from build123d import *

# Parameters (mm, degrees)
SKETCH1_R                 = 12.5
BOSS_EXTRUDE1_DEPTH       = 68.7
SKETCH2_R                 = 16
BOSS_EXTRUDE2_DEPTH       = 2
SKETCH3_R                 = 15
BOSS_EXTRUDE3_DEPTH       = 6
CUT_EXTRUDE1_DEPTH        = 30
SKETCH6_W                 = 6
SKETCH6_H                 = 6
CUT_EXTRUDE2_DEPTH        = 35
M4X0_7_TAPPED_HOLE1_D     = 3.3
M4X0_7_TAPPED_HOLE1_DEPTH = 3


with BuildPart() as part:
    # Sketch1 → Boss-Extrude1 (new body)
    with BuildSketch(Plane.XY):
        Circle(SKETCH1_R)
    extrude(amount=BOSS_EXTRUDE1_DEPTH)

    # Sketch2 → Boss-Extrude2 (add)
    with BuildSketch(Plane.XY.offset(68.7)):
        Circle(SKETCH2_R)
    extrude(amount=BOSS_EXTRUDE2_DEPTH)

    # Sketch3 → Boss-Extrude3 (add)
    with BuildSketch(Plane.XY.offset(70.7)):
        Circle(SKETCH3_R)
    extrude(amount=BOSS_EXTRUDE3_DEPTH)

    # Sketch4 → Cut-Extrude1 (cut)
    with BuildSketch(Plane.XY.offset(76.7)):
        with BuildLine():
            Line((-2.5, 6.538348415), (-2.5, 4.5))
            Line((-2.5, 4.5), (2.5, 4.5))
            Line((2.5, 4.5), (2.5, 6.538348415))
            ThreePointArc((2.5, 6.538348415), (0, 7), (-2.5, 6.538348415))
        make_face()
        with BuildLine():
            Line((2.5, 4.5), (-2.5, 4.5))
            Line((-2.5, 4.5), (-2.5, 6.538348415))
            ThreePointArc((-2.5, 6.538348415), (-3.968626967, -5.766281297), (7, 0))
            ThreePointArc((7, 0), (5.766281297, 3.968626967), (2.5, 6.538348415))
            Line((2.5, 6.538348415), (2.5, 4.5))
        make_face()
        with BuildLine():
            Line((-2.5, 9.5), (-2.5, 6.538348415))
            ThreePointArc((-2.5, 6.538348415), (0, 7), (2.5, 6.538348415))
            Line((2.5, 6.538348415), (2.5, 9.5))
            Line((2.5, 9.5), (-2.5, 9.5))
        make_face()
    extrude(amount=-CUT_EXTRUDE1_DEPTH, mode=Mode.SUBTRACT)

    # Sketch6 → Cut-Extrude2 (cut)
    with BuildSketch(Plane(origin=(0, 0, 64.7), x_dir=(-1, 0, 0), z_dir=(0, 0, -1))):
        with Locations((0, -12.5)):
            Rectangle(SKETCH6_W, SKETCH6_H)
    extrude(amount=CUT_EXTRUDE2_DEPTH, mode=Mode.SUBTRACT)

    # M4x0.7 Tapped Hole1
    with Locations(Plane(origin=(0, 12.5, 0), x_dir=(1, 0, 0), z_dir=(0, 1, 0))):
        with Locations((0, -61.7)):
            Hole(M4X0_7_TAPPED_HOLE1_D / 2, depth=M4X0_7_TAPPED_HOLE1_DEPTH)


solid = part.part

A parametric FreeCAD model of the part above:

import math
import FreeCAD as App
import Part
import Sketcher

V = App.Vector


def add_polygon(sketch, points):
    """Adds a closed chain of lines whose ends are joined by coincident constraints."""
    first, n = sketch.GeometryCount, len(points)
    for a, b in zip(points, points[1:] + points[:1]):
        sketch.addGeometry(Part.LineSegment(App.Vector(*a, 0), App.Vector(*b, 0)), False)
    for i in range(n):
        sketch.addConstraint(Sketcher.Constraint("Coincident", first + i, 2, first + (i + 1) % n, 1))

doc = App.newDocument("Part")
params = doc.addObject("Spreadsheet::Sheet", "Params")
for row, (alias, value) in enumerate([
    ("sketch1_diameter", "25 mm"),
    ("pad1_length", "68.7 mm"),
    ("sketch2_diameter", "32 mm"),
    ("pad2_length", "2 mm"),
    ("sketch3_diameter", "30 mm"),
    ("pad3_length", "6 mm"),
    ("sketch4_radius", "7 mm"),
    ("sketch4_width", "5 mm"),
    ("pocket1_length", "30 mm"),
    ("sketch5_width", "6 mm"),
    ("pocket2_length", "35 mm"),
    ("sketch6_diameter", "3.3 mm"),
    ("hole_diameter", "3.3 mm"),
    ("hole_depth", "3 mm"),
], start=1):
    params.set(f"A{row}", alias)
    params.set(f"B{row}", "=" + value)
    params.setAlias(f"B{row}", alias)

body = doc.addObject("PartDesign::Body", "Body")

# Sketch on XY plane
sketch1 = body.newObject("Sketcher::SketchObject", "Sketch")
sketch1.AttachmentSupport = (doc.getObject("XY_Plane"), [""])
sketch1.MapMode = "FlatFace"
sketch1.addGeometry(Part.Circle(V(0, 0, 0), V(0, 0, 1), 12), False)
sketch1.addConstraint([
    Sketcher.Constraint("Coincident", 0, 3, -1, 1),
    Sketcher.Constraint("Diameter", 0, 25.0),
])
sketch1.setExpression("Constraints[1]", "Params.sketch1_diameter")
pad1 = body.newObject("PartDesign::Pad", "Pad")
pad1.Profile = sketch1
pad1.setExpression("Length", "Params.pad1_length")

# Sketch on XY plane
sketch2 = body.newObject("Sketcher::SketchObject", "Sketch001")
sketch2.AttachmentSupport = (doc.getObject("XY_Plane"), [""])
sketch2.MapMode = "FlatFace"
sketch2.AttachmentOffset = App.Placement(V(0, 0, 68.7), App.Rotation())
sketch2.addGeometry(Part.Circle(V(0, 0, 0), V(0, 0, 1), 16), False)
sketch2.addConstraint([
    Sketcher.Constraint("Coincident", 0, 3, -1, 1),
    Sketcher.Constraint("Diameter", 0, 32.0),
])
sketch2.setExpression("Constraints[1]", "Params.sketch2_diameter")
pad2 = body.newObject("PartDesign::Pad", "Pad001")
pad2.Profile = sketch2
pad2.setExpression("Length", "Params.pad2_length")

# Sketch on XY plane
sketch3 = body.newObject("Sketcher::SketchObject", "Sketch002")
sketch3.AttachmentSupport = (doc.getObject("XY_Plane"), [""])
sketch3.MapMode = "FlatFace"
sketch3.AttachmentOffset = App.Placement(V(0, 0, 70.7), App.Rotation())
sketch3.addGeometry(Part.Circle(V(0, 0, 0), V(0, 0, 1), 15), False)
sketch3.addConstraint([
    Sketcher.Constraint("Coincident", 0, 3, -1, 1),
    Sketcher.Constraint("Diameter", 0, 30.0),
])
sketch3.setExpression("Constraints[1]", "Params.sketch3_diameter")
pad3 = body.newObject("PartDesign::Pad", "Pad002")
pad3.Profile = sketch3
pad3.setExpression("Length", "Params.pad3_length")

# Sketch on XY plane
sketch4 = body.newObject("Sketcher::SketchObject", "Sketch003")
sketch4.AttachmentSupport = (doc.getObject("XY_Plane"), [""])
sketch4.MapMode = "FlatFace"
sketch4.AttachmentOffset = App.Placement(V(0, 0, 76.7), App.Rotation())
sketch4.addGeometry([
    Part.ArcOfCircle(Part.Circle(V(0, 0, 0), V(0, 0, 1), 7), math.radians(111), math.radians(360)),  # 0
    Part.ArcOfCircle(Part.Circle(V(0, 0, 0), V(0, 0, 1), 7), math.radians(0), math.radians(69)),  # 1
    Part.LineSegment(V(2.5, 6.5, 0), V(2.5, 9.5, 0)),  # 2
    Part.LineSegment(V(2.5, 9.5, 0), V(-2.5, 9.5, 0)),  # 3
    Part.LineSegment(V(-2.5, 9.5, 0), V(-2.5, 6.5, 0)),  # 4
], False)
sketch4.addConstraint([
    Sketcher.Constraint("Tangent", 0, 2, 1, 1),
    Sketcher.Constraint("Coincident", 1, 2, 2, 1),
    Sketcher.Constraint("Coincident", 2, 2, 3, 1),
    Sketcher.Constraint("Coincident", 3, 2, 4, 1),
    Sketcher.Constraint("Coincident", 4, 2, 0, 1),
    Sketcher.Constraint("Vertical", 2),
    Sketcher.Constraint("Horizontal", 3),
    Sketcher.Constraint("Vertical", 4),
    Sketcher.Constraint("Coincident", 0, 3, -1, 1),
    Sketcher.Constraint("Equal", 0, 1),
    Sketcher.Constraint("PointOnObject", 0, 2, -1),
    Sketcher.Constraint("Horizontal", 1, 2, 4, 2),
    Sketcher.Constraint("Radius", 0, 7.0),
    Sketcher.Constraint("DistanceX", 3, 2, 3, 1, 5.0),
    Sketcher.Constraint("DistanceY", -1, 1, 2, 2, 9.5),
])
sketch4.setExpression("Constraints[12]", "Params.sketch4_radius")
sketch4.setExpression("Constraints[13]", "Params.sketch4_width")
pocket1 = body.newObject("PartDesign::Pocket", "Pocket")
pocket1.Profile = sketch4
pocket1.setExpression("Length", "Params.pocket1_length")

# Sketch on XY plane
sketch5 = body.newObject("Sketcher::SketchObject", "Sketch004")
sketch5.AttachmentSupport = (doc.getObject("XY_Plane"), [""])
sketch5.MapMode = "FlatFace"
sketch5.AttachmentOffset = App.Placement(V(0, 0, 64.7), App.Rotation())
add_polygon(sketch5, [(3, -10), (3, -16), (-3, -16), (-3, -10)])  # lines 0-3
sketch5.addConstraint([
    Sketcher.Constraint("Vertical", 0),
    Sketcher.Constraint("Horizontal", 1),
    Sketcher.Constraint("Vertical", 2),
    Sketcher.Constraint("Horizontal", 3),
    Sketcher.Constraint("Equal", 3, 0),
    Sketcher.Constraint("DistanceX", 1, 2, 1, 1, 6.0),
    Sketcher.Constraint("DistanceX", -1, 1, 0, 2, 3.0),
    Sketcher.Constraint("DistanceY", 0, 2, -1, 1, 15.5),
])
sketch5.setExpression("Constraints[9]", "Params.sketch5_width")
pocket2 = body.newObject("PartDesign::Pocket", "Pocket001")
pocket2.Profile = sketch5
pocket2.setExpression("Length", "Params.pocket2_length")

# Sketch on XZ plane
sketch6 = body.newObject("Sketcher::SketchObject", "Sketch005")
sketch6.AttachmentSupport = (doc.getObject("XZ_Plane"), [""])
sketch6.MapMode = "FlatFace"
sketch6.AttachmentOffset = App.Placement(V(0, 0, -12.5), App.Rotation())
sketch6.addGeometry(Part.Circle(V(0, 61.7, 0), V(0, 0, 1), 1.6), False)
sketch6.addConstraint([
    Sketcher.Constraint("PointOnObject", 0, 3, -2),
    Sketcher.Constraint("Diameter", 0, 3.3),
    Sketcher.Constraint("DistanceY", -1, 1, 0, 3, 61.7),
])
sketch6.setExpression("Constraints[1]", "Params.sketch6_diameter")
doc.recompute()
hole = body.newObject("PartDesign::Hole", "Hole")
hole.Profile = sketch6
hole.ThreadType = "None"
hole.setExpression("Diameter", "Params.hole_diameter")
hole.DepthType = "Dimension"
hole.setExpression("Depth", "Params.hole_depth")
hole.DrillPoint = "Flat"
hole.Reversed = True

doc.recompute()
